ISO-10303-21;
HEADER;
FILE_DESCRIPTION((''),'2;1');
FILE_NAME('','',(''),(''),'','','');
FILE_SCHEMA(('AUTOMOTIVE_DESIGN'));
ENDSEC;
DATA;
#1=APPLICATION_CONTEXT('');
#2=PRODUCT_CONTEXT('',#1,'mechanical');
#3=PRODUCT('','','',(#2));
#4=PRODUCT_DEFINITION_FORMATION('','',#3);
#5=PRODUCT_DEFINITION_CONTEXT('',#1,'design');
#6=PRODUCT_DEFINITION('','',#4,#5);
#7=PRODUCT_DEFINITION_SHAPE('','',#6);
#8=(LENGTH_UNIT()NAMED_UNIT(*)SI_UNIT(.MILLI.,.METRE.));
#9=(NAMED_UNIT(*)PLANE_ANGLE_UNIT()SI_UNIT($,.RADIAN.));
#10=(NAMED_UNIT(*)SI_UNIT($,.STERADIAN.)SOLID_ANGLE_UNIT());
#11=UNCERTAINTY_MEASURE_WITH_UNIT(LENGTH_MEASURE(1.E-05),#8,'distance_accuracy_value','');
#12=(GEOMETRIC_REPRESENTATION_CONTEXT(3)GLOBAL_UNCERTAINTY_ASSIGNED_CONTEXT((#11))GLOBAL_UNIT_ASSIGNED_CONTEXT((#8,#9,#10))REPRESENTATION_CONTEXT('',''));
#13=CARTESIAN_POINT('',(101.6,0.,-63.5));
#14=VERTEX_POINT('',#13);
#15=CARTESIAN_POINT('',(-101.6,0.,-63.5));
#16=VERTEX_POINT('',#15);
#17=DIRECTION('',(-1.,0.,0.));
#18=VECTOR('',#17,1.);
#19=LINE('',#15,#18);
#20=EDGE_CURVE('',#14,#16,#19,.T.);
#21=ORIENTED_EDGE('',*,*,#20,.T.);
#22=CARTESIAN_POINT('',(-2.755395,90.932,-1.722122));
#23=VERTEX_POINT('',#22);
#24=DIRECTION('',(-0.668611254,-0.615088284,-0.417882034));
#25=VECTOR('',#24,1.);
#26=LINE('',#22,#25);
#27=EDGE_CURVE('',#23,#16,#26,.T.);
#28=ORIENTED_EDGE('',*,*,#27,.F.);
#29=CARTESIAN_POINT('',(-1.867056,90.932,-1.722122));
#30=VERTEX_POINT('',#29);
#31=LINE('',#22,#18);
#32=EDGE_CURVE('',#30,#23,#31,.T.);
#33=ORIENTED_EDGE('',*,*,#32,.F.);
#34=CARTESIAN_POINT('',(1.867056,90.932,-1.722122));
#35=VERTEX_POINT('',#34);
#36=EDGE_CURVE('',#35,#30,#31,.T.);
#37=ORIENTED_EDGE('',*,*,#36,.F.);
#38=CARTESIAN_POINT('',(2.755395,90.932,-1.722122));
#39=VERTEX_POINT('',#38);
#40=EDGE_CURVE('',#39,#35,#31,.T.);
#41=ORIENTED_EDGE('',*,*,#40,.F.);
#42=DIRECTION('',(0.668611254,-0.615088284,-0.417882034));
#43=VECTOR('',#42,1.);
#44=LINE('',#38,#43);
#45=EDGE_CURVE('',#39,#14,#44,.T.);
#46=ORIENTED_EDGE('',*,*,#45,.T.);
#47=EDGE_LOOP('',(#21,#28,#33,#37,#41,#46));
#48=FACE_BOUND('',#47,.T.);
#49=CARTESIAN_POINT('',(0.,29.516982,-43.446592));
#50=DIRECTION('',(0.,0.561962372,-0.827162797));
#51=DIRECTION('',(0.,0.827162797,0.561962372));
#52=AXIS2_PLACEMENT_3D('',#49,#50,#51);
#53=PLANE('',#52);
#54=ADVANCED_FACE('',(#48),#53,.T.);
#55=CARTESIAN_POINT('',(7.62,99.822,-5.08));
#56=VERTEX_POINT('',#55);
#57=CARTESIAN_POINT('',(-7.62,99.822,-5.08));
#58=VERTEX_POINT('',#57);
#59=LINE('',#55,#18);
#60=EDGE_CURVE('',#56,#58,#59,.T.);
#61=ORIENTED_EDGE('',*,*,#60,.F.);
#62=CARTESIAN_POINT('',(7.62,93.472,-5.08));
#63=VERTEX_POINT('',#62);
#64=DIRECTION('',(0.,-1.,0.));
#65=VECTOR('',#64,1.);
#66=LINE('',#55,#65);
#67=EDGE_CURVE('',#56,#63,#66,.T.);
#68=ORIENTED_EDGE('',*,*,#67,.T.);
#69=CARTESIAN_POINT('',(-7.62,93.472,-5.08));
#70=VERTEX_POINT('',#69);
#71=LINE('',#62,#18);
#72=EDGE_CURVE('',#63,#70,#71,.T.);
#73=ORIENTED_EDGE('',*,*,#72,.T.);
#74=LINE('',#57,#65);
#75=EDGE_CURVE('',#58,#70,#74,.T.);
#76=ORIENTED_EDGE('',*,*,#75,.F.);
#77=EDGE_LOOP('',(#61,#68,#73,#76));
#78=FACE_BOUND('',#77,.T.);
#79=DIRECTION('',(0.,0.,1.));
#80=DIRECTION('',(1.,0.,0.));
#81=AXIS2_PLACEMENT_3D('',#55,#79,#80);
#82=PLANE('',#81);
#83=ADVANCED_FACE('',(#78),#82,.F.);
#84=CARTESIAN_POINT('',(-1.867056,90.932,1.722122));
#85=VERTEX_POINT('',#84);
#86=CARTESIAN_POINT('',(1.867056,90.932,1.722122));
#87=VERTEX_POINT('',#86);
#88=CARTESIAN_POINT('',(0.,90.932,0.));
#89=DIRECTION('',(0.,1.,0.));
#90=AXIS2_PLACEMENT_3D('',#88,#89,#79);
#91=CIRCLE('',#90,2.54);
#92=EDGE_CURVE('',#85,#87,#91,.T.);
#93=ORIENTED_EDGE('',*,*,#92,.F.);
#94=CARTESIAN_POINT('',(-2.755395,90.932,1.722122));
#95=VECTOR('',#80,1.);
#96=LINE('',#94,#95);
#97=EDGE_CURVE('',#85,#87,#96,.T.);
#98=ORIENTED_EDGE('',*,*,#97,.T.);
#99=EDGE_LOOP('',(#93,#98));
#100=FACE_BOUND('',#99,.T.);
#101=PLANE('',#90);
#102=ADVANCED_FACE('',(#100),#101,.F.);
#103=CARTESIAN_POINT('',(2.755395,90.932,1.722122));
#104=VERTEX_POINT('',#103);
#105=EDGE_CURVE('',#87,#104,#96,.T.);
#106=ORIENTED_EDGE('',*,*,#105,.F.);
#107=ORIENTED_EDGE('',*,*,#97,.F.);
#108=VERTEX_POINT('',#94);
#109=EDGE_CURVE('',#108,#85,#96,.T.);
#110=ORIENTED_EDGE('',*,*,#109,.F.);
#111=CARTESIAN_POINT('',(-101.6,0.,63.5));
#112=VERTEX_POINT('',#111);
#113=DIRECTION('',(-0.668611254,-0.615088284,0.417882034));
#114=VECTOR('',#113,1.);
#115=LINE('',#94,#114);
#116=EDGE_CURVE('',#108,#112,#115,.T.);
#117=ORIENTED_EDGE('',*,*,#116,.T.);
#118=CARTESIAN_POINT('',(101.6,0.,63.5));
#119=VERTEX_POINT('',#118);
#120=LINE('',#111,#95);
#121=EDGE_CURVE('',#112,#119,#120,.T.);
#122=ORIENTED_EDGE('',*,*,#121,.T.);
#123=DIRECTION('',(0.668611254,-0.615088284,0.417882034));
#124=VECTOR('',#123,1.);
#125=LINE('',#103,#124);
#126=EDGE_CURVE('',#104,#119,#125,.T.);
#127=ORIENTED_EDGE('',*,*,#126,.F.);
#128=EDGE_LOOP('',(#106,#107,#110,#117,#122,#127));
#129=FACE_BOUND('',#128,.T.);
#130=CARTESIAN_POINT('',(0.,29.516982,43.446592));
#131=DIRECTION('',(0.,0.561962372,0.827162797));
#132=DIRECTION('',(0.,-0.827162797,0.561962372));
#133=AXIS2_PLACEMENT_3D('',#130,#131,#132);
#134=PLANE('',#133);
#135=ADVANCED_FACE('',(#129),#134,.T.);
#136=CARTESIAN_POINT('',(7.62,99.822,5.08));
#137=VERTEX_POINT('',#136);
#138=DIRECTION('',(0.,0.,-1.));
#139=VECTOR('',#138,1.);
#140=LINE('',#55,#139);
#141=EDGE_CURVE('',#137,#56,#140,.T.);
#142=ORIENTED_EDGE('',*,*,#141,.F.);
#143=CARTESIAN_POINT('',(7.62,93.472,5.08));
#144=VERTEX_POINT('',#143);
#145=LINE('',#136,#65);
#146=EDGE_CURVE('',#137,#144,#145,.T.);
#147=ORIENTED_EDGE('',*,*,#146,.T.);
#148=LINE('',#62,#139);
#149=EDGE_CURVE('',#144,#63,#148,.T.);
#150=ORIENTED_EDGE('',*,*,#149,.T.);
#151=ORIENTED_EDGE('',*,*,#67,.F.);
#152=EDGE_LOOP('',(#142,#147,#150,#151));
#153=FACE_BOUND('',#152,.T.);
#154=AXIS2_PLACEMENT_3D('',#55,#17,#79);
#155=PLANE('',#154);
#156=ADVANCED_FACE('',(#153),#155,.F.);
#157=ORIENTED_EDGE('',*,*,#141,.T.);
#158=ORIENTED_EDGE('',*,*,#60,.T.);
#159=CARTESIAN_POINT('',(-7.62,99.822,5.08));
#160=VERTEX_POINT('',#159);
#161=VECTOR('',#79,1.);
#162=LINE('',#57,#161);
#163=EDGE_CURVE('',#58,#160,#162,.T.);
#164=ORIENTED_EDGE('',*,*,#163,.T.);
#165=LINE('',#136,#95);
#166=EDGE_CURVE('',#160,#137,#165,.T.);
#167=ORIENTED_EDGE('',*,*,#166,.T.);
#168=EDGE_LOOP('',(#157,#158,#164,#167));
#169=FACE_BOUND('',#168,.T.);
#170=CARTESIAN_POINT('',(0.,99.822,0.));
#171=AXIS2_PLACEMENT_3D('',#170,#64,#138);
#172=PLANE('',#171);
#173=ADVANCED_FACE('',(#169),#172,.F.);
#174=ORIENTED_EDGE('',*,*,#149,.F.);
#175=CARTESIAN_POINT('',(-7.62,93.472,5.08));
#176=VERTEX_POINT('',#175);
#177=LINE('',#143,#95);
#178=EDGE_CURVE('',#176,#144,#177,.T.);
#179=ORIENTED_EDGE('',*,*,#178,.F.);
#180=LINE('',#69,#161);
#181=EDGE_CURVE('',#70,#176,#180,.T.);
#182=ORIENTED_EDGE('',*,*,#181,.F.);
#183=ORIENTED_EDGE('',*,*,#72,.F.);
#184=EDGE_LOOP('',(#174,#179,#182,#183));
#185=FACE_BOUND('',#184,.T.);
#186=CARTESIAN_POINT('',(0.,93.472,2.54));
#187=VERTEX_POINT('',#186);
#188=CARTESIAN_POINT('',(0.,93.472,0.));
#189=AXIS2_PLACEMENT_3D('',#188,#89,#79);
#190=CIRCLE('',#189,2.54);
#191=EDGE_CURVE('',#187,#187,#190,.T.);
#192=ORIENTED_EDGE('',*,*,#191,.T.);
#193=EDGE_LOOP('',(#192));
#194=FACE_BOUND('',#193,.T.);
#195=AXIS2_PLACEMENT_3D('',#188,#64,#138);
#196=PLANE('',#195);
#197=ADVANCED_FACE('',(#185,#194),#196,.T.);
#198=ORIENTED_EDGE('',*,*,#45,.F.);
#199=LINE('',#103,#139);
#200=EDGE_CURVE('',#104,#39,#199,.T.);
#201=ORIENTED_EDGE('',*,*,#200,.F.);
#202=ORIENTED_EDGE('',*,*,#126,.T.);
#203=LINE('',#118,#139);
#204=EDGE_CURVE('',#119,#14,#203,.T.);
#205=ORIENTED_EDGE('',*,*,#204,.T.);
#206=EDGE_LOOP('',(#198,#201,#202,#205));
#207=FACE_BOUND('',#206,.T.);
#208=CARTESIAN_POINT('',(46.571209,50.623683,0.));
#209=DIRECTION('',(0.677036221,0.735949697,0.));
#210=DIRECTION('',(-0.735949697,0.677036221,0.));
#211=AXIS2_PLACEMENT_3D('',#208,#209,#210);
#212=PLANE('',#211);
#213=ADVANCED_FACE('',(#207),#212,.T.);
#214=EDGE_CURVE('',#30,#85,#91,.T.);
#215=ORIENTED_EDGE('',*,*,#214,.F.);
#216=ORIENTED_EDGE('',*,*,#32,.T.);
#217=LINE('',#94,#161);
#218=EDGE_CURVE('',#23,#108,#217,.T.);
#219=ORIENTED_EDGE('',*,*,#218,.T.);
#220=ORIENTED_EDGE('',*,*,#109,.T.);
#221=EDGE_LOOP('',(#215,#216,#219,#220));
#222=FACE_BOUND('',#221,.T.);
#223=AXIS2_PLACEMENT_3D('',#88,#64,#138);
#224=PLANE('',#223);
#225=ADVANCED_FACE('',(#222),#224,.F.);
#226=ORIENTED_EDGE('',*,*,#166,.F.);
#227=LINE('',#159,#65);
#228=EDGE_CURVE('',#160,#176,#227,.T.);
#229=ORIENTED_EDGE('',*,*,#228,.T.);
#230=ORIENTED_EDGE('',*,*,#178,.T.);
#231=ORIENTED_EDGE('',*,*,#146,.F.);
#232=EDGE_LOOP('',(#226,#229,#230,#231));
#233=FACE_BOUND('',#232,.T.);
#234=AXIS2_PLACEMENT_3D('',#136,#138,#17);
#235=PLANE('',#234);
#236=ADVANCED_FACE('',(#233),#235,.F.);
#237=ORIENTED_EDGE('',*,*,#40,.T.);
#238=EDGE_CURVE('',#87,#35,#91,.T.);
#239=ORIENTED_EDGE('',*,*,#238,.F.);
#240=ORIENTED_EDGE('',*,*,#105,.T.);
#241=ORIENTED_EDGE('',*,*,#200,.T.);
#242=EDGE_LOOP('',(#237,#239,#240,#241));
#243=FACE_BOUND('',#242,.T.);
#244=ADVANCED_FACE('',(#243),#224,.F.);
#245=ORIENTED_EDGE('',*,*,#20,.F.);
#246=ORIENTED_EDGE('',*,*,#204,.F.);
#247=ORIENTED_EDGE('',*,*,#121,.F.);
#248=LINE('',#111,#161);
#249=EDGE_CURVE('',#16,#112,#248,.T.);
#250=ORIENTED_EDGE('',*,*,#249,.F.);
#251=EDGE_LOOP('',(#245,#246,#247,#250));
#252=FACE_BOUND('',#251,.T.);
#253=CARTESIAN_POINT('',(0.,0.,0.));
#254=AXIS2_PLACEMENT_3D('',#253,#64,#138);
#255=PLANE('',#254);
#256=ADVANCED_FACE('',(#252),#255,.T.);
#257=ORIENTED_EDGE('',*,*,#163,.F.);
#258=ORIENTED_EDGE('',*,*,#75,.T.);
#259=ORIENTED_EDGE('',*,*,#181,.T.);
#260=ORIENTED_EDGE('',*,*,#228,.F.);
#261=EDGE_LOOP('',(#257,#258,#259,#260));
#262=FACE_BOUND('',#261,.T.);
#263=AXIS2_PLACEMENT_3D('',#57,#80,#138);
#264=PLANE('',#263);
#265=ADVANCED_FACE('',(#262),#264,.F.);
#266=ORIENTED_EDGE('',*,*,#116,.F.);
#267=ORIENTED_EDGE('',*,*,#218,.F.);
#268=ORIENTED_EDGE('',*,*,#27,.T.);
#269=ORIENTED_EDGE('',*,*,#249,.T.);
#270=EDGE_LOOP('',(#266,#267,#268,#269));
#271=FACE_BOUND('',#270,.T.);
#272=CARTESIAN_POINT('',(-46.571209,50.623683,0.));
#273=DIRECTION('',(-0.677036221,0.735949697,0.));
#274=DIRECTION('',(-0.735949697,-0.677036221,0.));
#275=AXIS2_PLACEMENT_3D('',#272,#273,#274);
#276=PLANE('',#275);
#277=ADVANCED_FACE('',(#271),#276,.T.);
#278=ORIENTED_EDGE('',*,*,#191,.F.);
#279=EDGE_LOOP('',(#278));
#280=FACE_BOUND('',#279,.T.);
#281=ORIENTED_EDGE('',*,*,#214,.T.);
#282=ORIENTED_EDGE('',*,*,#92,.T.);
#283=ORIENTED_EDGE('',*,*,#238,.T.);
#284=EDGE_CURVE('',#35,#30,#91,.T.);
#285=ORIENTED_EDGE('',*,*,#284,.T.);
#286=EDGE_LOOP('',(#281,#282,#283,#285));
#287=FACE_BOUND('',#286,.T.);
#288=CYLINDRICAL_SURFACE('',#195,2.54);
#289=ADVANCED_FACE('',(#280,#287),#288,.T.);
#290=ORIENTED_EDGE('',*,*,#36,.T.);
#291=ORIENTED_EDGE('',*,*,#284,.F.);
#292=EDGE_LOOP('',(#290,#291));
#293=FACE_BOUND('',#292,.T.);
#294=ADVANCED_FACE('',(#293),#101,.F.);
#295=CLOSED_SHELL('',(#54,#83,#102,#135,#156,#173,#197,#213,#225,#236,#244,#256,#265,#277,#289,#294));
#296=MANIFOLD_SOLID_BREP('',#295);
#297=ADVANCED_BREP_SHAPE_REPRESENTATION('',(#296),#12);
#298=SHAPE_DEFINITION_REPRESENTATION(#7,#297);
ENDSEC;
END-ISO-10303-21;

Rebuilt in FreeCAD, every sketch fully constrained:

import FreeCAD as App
import Part
import Sketcher

V = App.Vector
Q = App.Units.Quantity


def add_polygon(sketch, points):
    """Adds a closed chain of lines whose ends are joined by coincident constraints."""
    first, n = sketch.GeometryCount, len(points)
    for a, b in zip(points, points[1:] + points[:1]):
        sketch.addGeometry(Part.LineSegment(App.Vector(*a, 0), App.Vector(*b, 0)), False)
    for i in range(n):
        sketch.addConstraint(Sketcher.Constraint("Coincident", first + i, 2, first + (i + 1) % n, 1))

doc = App.newDocument("Part")
body = doc.addObject("PartDesign::Body", "Body")

sketch1 = body.newObject("Sketcher::SketchObject", "Sketch")
sketch1.AttachmentSupport = (doc.getObject("XZ_Plane"), [""])
sketch1.MapMode = "FlatFace"
sketch1.AttachmentOffset = App.Placement(V(0, 0, -3.58 * 25.4), App.Rotation())
add_polygon(sketch1, [(-2.8, 1.7), (2.8, 1.7), (2.8, -1.7), (-2.8, -1.7)])
sketch1.addConstraint(Sketcher.Constraint("Horizontal", 0))
sketch1.addConstraint(Sketcher.Constraint("Vertical", 1))
sketch1.addConstraint(Sketcher.Constraint("Horizontal", 2))
sketch1.addConstraint(Sketcher.Constraint("Vertical", 3))
sketch1.addConstraint(Sketcher.Constraint("Symmetric", 0, 2, 2, 2, -1, 1))
sketch1.addConstraint(Sketcher.Constraint("DistanceY", 1, 2, 1, 1, Q("0.1356001 in")))
sketch1.addConstraint(Sketcher.Constraint("DistanceX", 0, 1, 0, 2, 5.51079))

sketch2 = body.newObject("Sketcher::SketchObject", "Sketch001")
sketch2.AttachmentSupport = (doc.getObject("XZ_Plane"), [""])
sketch2.MapMode = "FlatFace"
add_polygon(sketch2, [(-102, 64), (102, 64), (102, -64), (-102, -64)])
sketch2.addConstraint(Sketcher.Constraint("Horizontal", 0))
sketch2.addConstraint(Sketcher.Constraint("Vertical", 1))
sketch2.addConstraint(Sketcher.Constraint("Horizontal", 2))
sketch2.addConstraint(Sketcher.Constraint("Vertical", 3))
sketch2.addConstraint(Sketcher.Constraint("Symmetric", 0, 2, 2, 2, -1, 1))
sketch2.addConstraint(Sketcher.Constraint("DistanceX", 0, 1, 0, 2, Q("8 in")))
sketch2.addConstraint(Sketcher.Constraint("DistanceY", 1, 2, 1, 1, Q("5 in")))

additiveloft = body.newObject("PartDesign::AdditiveLoft", "AdditiveLoft")
additiveloft.Profile = sketch1
additiveloft.Sections = [sketch2]

sketch3 = body.newObject("Sketcher::SketchObject", "Sketch002")
sketch3.AttachmentSupport = (doc.getObject("XZ_Plane"), [""])
sketch3.MapMode = "FlatFace"
sketch3.AttachmentOffset = App.Placement(V(0, 0, -3.58 * 25.4), App.Rotation())
sketch3.addGeometry(Part.Circle(V(0, 0, 0), V(0, 0, 1), 2.5), False)
sketch3.addConstraint(Sketcher.Constraint("Coincident", 0, 3, -1, 1))
sketch3.addConstraint(Sketcher.Constraint("Diameter", 0, Q("0.2 in")))
pad1 = body.newObject("PartDesign::Pad", "Pad")
pad1.Profile = sketch3
pad1.Length = Q("0.1 in")
pad1.Reversed = True

sketch4 = body.newObject("Sketcher::SketchObject", "Sketch003")
sketch4.AttachmentSupport = (doc.getObject("XZ_Plane"), [""])
sketch4.MapMode = "FlatFace"
sketch4.AttachmentOffset = App.Placement(V(0, 0, -3.68 * 25.4), App.Rotation())
add_polygon(sketch4, [(-8, -5), (-8, 5), (8, 5), (8, -5)])
sketch4.addConstraint(Sketcher.Constraint("Vertical", 0))
sketch4.addConstraint(Sketcher.Constraint("Horizontal", 1))
sketch4.addConstraint(Sketcher.Constraint("Vertical", 2))
sketch4.addConstraint(Sketcher.Constraint("Horizontal", 3))
sketch4.addConstraint(Sketcher.Constraint("Symmetric", 0, 2, 2, 2, -1, 1))
sketch4.addConstraint(Sketcher.Constraint("DistanceX", 1, 1, 1, 2, Q("0.6 in")))
sketch4.addConstraint(Sketcher.Constraint("DistanceY", 0, 1, 0, 2, Q("0.4 in")))
pad2 = body.newObject("PartDesign::Pad", "Pad001")
pad2.Profile = sketch4
pad2.Length = Q("0.25 in")
pad2.Reversed = True

doc.recompute()
